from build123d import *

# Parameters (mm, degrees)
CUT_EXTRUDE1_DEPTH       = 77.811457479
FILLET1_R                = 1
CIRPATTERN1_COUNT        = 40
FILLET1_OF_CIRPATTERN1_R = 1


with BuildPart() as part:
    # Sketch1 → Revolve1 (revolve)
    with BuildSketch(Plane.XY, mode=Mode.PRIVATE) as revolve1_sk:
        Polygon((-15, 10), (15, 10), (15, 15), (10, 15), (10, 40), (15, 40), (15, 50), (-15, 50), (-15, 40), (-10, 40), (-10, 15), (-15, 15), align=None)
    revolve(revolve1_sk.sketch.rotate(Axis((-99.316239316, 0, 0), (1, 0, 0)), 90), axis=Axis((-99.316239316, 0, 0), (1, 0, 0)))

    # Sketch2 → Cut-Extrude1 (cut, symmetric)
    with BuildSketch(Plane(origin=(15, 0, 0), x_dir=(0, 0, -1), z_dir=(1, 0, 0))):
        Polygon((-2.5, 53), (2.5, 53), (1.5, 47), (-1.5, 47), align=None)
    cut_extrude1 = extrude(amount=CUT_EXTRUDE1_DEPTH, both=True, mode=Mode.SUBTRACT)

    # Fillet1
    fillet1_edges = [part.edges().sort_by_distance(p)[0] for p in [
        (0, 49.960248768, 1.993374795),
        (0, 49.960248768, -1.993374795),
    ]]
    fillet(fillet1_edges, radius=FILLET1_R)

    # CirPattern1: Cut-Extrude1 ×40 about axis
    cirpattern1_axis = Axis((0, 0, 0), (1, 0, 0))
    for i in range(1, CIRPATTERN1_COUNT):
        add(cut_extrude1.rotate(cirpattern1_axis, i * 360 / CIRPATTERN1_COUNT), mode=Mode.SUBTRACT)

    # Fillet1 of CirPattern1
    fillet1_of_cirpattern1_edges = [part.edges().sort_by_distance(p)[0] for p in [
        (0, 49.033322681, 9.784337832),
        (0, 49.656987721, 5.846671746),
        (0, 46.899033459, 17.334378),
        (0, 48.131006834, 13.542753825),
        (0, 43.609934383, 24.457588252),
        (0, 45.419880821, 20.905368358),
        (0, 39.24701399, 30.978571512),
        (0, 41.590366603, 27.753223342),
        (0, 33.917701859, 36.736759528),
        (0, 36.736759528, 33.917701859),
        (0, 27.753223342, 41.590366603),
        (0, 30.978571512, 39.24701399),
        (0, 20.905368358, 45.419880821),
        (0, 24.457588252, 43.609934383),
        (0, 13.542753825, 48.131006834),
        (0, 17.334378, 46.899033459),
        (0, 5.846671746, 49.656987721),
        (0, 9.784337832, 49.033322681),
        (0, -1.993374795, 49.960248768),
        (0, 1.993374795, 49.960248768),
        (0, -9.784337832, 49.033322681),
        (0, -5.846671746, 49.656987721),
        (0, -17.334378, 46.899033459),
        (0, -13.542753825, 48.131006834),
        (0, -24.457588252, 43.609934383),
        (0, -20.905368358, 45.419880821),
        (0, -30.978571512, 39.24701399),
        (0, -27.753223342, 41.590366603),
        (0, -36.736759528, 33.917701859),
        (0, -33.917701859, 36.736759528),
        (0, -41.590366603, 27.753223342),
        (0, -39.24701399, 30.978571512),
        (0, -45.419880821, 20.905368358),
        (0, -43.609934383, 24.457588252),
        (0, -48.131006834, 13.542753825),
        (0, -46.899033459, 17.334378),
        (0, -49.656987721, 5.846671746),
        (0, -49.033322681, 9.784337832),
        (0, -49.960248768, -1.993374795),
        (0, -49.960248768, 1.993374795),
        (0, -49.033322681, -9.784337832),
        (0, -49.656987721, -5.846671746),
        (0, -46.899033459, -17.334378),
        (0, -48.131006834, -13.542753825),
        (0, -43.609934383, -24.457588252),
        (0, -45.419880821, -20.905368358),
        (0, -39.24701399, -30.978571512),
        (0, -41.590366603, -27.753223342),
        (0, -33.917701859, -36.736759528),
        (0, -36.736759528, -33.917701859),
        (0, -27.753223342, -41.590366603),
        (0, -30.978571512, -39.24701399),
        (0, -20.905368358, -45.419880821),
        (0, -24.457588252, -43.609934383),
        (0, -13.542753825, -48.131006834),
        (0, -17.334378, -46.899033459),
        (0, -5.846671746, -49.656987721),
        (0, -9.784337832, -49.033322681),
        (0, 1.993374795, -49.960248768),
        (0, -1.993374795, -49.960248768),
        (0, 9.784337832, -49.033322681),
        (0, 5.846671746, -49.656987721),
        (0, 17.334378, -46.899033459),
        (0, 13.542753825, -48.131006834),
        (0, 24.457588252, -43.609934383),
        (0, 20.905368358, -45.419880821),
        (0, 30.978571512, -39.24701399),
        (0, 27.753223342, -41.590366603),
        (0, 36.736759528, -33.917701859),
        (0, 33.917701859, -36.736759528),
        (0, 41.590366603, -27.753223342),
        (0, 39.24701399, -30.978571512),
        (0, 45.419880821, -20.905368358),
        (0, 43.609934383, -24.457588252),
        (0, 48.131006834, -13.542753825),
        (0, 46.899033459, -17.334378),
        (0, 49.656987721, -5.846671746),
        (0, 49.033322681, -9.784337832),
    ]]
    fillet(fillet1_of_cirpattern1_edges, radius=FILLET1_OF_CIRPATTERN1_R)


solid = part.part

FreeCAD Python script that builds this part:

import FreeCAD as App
import Part
import Sketcher

V = App.Vector


def edges_at(feature, points):
    """Names of the edges that pass closest to the given points."""
    edges = feature.Shape.Edges
    near = lambda p: min(range(len(edges)), key=lambda i: edges[i].distToShape(Part.Vertex(*p))[0])
    return sorted({f"Edge{near(p) + 1}" for p in points})

doc = App.newDocument("Part")
body = doc.addObject("PartDesign::Body", "Body")

sketch1 = doc.addObject("Sketcher::SketchObject", "Sketch")
body.addObject(sketch1)
sketch1.AttachmentSupport = (doc.XY_Plane, [""])
sketch1.MapMode = "FlatFace"
sketch1.addGeometry([
    Part.LineSegment(V(-15, 10, 0), V(15, 10, 0)),
    Part.LineSegment(V(15, 10, 0), V(15, 15, 0)),
    Part.LineSegment(V(15, 15, 0), V(10, 15, 0)),
    Part.LineSegment(V(10, 15, 0), V(10, 40, 0)),
    Part.LineSegment(V(10, 40, 0), V(15, 40, 0)),
    Part.LineSegment(V(15, 40, 0), V(15, 50, 0)),
    Part.LineSegment(V(15, 50, 0), V(-15, 50, 0)),
    Part.LineSegment(V(-15, 50, 0), V(-15, 40, 0)),
    Part.LineSegment(V(-15, 40, 0), V(-10, 40, 0)),
    Part.LineSegment(V(-10, 40, 0), V(-10, 15, 0)),
    Part.LineSegment(V(-10, 15, 0), V(-15, 15, 0)),
    Part.LineSegment(V(-15, 15, 0), V(-15, 10, 0)),
], False)
sketch1.addConstraint([
    Sketcher.Constraint("Coincident", 0, 2, 1, 1),
    Sketcher.Constraint("Coincident", 1, 2, 2, 1),
    Sketcher.Constraint("Coincident", 2, 2, 3, 1),
    Sketcher.Constraint("Coincident", 3, 2, 4, 1),
    Sketcher.Constraint("Coincident", 4, 2, 5, 1),
    Sketcher.Constraint("Coincident", 5, 2, 6, 1),
    Sketcher.Constraint("Coincident", 6, 2, 7, 1),
    Sketcher.Constraint("Coincident", 7, 2, 8, 1),
    Sketcher.Constraint("Coincident", 8, 2, 9, 1),
    Sketcher.Constraint("Coincident", 9, 2, 10, 1),
    Sketcher.Constraint("Coincident", 10, 2, 11, 1),
    Sketcher.Constraint("Coincident", 11, 2, 0, 1),
    Sketcher.Constraint("Horizontal", 0),
    Sketcher.Constraint("Vertical", 1),
    Sketcher.Constraint("Horizontal", 2),
    Sketcher.Constraint("Vertical", 3),
    Sketcher.Constraint("Horizontal", 4),
    Sketcher.Constraint("Vertical", 5),
    Sketcher.Constraint("Horizontal", 6),
    Sketcher.Constraint("Vertical", 7),
    Sketcher.Constraint("Horizontal", 8),
    Sketcher.Constraint("Vertical", 9),
    Sketcher.Constraint("Horizontal", 10),
    Sketcher.Constraint("Vertical", 11),
    Sketcher.Constraint("Symmetric", 4, 2, 7, 2, -2),
    Sketcher.Constraint("Symmetric", 2, 2, 9, 2, -2),
    Sketcher.Constraint("Vertical", 1, 2, 4, 2),
    Sketcher.Constraint("Vertical", 7, 2, 10, 2),
    Sketcher.Constraint("Equal", 10, 1),
    Sketcher.Constraint("DistanceX", 0, 1, 0, 2, 30.0),
    Sketcher.Constraint("DistanceX", 2, 2, 2, 1, 5.0),
    Sketcher.Constraint("DistanceY", 3, 1, 3, 2, 25.0),
    Sketcher.Constraint("DistanceY", 5, 1, 5, 2, 10.0),
    Sketcher.Constraint("DistanceY", -1, 1, 0, 2, 10.0),
])
revolution = doc.addObject("PartDesign::Revolution", "Revolution")
body.addObject(revolution)
revolution.Profile = sketch1
revolution.ReferenceAxis = (sketch1, ["H_Axis"])
revolution.Angle = 360

sketch2 = doc.addObject("Sketcher::SketchObject", "Sketch001")
body.addObject(sketch2)
sketch2.AttachmentSupport = (doc.YZ_Plane, [""])
sketch2.MapMode = "FlatFace"
sketch2.AttachmentOffset = App.Placement(V(0, 0, 15), App.Rotation())
sketch2.addGeometry([
    Part.LineSegment(V(53, -2.5, 0), V(53, 2.5, 0)),
    Part.LineSegment(V(53, 2.5, 0), V(47, 1.5, 0)),
    Part.LineSegment(V(47, 1.5, 0), V(47, -1.5, 0)),
    Part.LineSegment(V(47, -1.5, 0), V(53, -2.5, 0)),
], False)
sketch2.addConstraint([
    Sketcher.Constraint("Coincident", 0, 2, 1, 1),
    Sketcher.Constraint("Coincident", 1, 2, 2, 1),
    Sketcher.Constraint("Coincident", 2, 2, 3, 1),
    Sketcher.Constraint("Coincident", 3, 2, 0, 1),
    Sketcher.Constraint("Vertical", 0),
    Sketcher.Constraint("Vertical", 2),
    Sketcher.Constraint("Equal", 1, 3),
    Sketcher.Constraint("DistanceY", 0, 1, 0, 2, 5.0),
    Sketcher.Constraint("DistanceY", 2, 2, 2, 1, 3.0),
    Sketcher.Constraint("DistanceX", -1, 1, 0, 2, 53.0),
    Sketcher.Constraint("DistanceX", -1, 1, 1, 2, 47.0),
    Sketcher.Constraint("DistanceY", -1, 1, 0, 2, 2.5),
])
pocket1 = doc.addObject("PartDesign::Pocket", "Pocket")
body.addObject(pocket1)
pocket1.Profile = sketch2
pocket1.Length = 155.622915
pocket1.Midplane = True
doc.recompute()

fillet = doc.addObject("PartDesign::Fillet", "Fillet")
body.addObject(fillet)
fillet.Base = (pocket1, edges_at(pocket1, [(0, 49.96, 1.993), (0, 49.96, -1.993)]))
fillet.Radius = 1
doc.recompute()

polarpattern = doc.addObject("PartDesign::PolarPattern", "PolarPattern")
body.addObject(polarpattern)
polarpattern.Originals = [pocket1]
polarpattern.Axis = (doc.X_Axis, [""])
polarpattern.Angle = 360
polarpattern.Occurrences = 40
body.Tip = polarpattern
doc.recompute()

fillet2 = doc.addObject("PartDesign::Fillet", "Fillet001")
body.addObject(fillet2)
fillet2.Base = (polarpattern, edges_at(polarpattern, [
    (0, 49.033, 9.784),
    (0, 49.657, 5.847),
    (0, 46.899, 17.334),
    (0, 48.131, 13.543),
    (0, 43.61, 24.458),
    (0, 45.42, 20.905),
    (0, 39.247, 30.979),
    (0, 41.59, 27.753),
    (0, 33.918, 36.737),
    (0, 36.737, 33.918),
    (0, 27.753, 41.59),
    (0, 30.979, 39.247),
    (0, 20.905, 45.42),
    (0, 24.458, 43.61),
    (0, 13.543, 48.131),
    (0, 17.334, 46.899),
    (0, 5.847, 49.657),
    (0, 9.784, 49.033),
    (0, -1.993, 49.96),
    (0, 1.993, 49.96),
    (0, -9.784, 49.033),
    (0, -5.847, 49.657),
    (0, -17.334, 46.899),
    (0, -13.543, 48.131),
    (0, -24.458, 43.61),
    (0, -20.905, 45.42),
    (0, -30.979, 39.247),
    (0, -27.753, 41.59),
    (0, -36.737, 33.918),
    (0, -33.918, 36.737),
    (0, -41.59, 27.753),
    (0, -39.247, 30.979),
    (0, -45.42, 20.905),
    (0, -43.61, 24.458),
    (0, -48.131, 13.543),
    (0, -46.899, 17.334),
    (0, -49.657, 5.847),
    (0, -49.033, 9.784),
    (0, -49.96, -1.993),
    (0, -49.96, 1.993),
    (0, -49.033, -9.784),
    (0, -49.657, -5.847),
    (0, -46.899, -17.334),
    (0, -48.131, -13.543),
    (0, -43.61, -24.458),
    (0, -45.42, -20.905),
    (0, -39.247, -30.979),
    (0, -41.59, -27.753),
    (0, -33.918, -36.737),
    (0, -36.737, -33.918),
    (0, -27.753, -41.59),
    (0, -30.979, -39.247),
    (0, -20.905, -45.42),
    (0, -24.458, -43.61),
    (0, -13.543, -48.131),
    (0, -17.334, -46.899),
    (0, -5.847, -49.657),
    (0, -9.784, -49.033),
    (0, 1.993, -49.96),
    (0, -1.993, -49.96),
    (0, 9.784, -49.033),
    (0, 5.847, -49.657),
    (0, 17.334, -46.899),
    (0, 13.543, -48.131),
    (0, 24.458, -43.61),
    (0, 20.905, -45.42),
    (0, 30.979, -39.247),
    (0, 27.753, -41.59),
    (0, 36.737, -33.918),
    (0, 33.918, -36.737),
    (0, 41.59, -27.753),
    (0, 39.247, -30.979),
    (0, 45.42, -20.905),
    (0, 43.61, -24.458),
    (0, 48.131, -13.543),
    (0, 46.899, -17.334),
    (0, 49.657, -5.847),
    (0, 49.033, -9.784),
]))
fillet2.Radius = 1

doc.recompute()
